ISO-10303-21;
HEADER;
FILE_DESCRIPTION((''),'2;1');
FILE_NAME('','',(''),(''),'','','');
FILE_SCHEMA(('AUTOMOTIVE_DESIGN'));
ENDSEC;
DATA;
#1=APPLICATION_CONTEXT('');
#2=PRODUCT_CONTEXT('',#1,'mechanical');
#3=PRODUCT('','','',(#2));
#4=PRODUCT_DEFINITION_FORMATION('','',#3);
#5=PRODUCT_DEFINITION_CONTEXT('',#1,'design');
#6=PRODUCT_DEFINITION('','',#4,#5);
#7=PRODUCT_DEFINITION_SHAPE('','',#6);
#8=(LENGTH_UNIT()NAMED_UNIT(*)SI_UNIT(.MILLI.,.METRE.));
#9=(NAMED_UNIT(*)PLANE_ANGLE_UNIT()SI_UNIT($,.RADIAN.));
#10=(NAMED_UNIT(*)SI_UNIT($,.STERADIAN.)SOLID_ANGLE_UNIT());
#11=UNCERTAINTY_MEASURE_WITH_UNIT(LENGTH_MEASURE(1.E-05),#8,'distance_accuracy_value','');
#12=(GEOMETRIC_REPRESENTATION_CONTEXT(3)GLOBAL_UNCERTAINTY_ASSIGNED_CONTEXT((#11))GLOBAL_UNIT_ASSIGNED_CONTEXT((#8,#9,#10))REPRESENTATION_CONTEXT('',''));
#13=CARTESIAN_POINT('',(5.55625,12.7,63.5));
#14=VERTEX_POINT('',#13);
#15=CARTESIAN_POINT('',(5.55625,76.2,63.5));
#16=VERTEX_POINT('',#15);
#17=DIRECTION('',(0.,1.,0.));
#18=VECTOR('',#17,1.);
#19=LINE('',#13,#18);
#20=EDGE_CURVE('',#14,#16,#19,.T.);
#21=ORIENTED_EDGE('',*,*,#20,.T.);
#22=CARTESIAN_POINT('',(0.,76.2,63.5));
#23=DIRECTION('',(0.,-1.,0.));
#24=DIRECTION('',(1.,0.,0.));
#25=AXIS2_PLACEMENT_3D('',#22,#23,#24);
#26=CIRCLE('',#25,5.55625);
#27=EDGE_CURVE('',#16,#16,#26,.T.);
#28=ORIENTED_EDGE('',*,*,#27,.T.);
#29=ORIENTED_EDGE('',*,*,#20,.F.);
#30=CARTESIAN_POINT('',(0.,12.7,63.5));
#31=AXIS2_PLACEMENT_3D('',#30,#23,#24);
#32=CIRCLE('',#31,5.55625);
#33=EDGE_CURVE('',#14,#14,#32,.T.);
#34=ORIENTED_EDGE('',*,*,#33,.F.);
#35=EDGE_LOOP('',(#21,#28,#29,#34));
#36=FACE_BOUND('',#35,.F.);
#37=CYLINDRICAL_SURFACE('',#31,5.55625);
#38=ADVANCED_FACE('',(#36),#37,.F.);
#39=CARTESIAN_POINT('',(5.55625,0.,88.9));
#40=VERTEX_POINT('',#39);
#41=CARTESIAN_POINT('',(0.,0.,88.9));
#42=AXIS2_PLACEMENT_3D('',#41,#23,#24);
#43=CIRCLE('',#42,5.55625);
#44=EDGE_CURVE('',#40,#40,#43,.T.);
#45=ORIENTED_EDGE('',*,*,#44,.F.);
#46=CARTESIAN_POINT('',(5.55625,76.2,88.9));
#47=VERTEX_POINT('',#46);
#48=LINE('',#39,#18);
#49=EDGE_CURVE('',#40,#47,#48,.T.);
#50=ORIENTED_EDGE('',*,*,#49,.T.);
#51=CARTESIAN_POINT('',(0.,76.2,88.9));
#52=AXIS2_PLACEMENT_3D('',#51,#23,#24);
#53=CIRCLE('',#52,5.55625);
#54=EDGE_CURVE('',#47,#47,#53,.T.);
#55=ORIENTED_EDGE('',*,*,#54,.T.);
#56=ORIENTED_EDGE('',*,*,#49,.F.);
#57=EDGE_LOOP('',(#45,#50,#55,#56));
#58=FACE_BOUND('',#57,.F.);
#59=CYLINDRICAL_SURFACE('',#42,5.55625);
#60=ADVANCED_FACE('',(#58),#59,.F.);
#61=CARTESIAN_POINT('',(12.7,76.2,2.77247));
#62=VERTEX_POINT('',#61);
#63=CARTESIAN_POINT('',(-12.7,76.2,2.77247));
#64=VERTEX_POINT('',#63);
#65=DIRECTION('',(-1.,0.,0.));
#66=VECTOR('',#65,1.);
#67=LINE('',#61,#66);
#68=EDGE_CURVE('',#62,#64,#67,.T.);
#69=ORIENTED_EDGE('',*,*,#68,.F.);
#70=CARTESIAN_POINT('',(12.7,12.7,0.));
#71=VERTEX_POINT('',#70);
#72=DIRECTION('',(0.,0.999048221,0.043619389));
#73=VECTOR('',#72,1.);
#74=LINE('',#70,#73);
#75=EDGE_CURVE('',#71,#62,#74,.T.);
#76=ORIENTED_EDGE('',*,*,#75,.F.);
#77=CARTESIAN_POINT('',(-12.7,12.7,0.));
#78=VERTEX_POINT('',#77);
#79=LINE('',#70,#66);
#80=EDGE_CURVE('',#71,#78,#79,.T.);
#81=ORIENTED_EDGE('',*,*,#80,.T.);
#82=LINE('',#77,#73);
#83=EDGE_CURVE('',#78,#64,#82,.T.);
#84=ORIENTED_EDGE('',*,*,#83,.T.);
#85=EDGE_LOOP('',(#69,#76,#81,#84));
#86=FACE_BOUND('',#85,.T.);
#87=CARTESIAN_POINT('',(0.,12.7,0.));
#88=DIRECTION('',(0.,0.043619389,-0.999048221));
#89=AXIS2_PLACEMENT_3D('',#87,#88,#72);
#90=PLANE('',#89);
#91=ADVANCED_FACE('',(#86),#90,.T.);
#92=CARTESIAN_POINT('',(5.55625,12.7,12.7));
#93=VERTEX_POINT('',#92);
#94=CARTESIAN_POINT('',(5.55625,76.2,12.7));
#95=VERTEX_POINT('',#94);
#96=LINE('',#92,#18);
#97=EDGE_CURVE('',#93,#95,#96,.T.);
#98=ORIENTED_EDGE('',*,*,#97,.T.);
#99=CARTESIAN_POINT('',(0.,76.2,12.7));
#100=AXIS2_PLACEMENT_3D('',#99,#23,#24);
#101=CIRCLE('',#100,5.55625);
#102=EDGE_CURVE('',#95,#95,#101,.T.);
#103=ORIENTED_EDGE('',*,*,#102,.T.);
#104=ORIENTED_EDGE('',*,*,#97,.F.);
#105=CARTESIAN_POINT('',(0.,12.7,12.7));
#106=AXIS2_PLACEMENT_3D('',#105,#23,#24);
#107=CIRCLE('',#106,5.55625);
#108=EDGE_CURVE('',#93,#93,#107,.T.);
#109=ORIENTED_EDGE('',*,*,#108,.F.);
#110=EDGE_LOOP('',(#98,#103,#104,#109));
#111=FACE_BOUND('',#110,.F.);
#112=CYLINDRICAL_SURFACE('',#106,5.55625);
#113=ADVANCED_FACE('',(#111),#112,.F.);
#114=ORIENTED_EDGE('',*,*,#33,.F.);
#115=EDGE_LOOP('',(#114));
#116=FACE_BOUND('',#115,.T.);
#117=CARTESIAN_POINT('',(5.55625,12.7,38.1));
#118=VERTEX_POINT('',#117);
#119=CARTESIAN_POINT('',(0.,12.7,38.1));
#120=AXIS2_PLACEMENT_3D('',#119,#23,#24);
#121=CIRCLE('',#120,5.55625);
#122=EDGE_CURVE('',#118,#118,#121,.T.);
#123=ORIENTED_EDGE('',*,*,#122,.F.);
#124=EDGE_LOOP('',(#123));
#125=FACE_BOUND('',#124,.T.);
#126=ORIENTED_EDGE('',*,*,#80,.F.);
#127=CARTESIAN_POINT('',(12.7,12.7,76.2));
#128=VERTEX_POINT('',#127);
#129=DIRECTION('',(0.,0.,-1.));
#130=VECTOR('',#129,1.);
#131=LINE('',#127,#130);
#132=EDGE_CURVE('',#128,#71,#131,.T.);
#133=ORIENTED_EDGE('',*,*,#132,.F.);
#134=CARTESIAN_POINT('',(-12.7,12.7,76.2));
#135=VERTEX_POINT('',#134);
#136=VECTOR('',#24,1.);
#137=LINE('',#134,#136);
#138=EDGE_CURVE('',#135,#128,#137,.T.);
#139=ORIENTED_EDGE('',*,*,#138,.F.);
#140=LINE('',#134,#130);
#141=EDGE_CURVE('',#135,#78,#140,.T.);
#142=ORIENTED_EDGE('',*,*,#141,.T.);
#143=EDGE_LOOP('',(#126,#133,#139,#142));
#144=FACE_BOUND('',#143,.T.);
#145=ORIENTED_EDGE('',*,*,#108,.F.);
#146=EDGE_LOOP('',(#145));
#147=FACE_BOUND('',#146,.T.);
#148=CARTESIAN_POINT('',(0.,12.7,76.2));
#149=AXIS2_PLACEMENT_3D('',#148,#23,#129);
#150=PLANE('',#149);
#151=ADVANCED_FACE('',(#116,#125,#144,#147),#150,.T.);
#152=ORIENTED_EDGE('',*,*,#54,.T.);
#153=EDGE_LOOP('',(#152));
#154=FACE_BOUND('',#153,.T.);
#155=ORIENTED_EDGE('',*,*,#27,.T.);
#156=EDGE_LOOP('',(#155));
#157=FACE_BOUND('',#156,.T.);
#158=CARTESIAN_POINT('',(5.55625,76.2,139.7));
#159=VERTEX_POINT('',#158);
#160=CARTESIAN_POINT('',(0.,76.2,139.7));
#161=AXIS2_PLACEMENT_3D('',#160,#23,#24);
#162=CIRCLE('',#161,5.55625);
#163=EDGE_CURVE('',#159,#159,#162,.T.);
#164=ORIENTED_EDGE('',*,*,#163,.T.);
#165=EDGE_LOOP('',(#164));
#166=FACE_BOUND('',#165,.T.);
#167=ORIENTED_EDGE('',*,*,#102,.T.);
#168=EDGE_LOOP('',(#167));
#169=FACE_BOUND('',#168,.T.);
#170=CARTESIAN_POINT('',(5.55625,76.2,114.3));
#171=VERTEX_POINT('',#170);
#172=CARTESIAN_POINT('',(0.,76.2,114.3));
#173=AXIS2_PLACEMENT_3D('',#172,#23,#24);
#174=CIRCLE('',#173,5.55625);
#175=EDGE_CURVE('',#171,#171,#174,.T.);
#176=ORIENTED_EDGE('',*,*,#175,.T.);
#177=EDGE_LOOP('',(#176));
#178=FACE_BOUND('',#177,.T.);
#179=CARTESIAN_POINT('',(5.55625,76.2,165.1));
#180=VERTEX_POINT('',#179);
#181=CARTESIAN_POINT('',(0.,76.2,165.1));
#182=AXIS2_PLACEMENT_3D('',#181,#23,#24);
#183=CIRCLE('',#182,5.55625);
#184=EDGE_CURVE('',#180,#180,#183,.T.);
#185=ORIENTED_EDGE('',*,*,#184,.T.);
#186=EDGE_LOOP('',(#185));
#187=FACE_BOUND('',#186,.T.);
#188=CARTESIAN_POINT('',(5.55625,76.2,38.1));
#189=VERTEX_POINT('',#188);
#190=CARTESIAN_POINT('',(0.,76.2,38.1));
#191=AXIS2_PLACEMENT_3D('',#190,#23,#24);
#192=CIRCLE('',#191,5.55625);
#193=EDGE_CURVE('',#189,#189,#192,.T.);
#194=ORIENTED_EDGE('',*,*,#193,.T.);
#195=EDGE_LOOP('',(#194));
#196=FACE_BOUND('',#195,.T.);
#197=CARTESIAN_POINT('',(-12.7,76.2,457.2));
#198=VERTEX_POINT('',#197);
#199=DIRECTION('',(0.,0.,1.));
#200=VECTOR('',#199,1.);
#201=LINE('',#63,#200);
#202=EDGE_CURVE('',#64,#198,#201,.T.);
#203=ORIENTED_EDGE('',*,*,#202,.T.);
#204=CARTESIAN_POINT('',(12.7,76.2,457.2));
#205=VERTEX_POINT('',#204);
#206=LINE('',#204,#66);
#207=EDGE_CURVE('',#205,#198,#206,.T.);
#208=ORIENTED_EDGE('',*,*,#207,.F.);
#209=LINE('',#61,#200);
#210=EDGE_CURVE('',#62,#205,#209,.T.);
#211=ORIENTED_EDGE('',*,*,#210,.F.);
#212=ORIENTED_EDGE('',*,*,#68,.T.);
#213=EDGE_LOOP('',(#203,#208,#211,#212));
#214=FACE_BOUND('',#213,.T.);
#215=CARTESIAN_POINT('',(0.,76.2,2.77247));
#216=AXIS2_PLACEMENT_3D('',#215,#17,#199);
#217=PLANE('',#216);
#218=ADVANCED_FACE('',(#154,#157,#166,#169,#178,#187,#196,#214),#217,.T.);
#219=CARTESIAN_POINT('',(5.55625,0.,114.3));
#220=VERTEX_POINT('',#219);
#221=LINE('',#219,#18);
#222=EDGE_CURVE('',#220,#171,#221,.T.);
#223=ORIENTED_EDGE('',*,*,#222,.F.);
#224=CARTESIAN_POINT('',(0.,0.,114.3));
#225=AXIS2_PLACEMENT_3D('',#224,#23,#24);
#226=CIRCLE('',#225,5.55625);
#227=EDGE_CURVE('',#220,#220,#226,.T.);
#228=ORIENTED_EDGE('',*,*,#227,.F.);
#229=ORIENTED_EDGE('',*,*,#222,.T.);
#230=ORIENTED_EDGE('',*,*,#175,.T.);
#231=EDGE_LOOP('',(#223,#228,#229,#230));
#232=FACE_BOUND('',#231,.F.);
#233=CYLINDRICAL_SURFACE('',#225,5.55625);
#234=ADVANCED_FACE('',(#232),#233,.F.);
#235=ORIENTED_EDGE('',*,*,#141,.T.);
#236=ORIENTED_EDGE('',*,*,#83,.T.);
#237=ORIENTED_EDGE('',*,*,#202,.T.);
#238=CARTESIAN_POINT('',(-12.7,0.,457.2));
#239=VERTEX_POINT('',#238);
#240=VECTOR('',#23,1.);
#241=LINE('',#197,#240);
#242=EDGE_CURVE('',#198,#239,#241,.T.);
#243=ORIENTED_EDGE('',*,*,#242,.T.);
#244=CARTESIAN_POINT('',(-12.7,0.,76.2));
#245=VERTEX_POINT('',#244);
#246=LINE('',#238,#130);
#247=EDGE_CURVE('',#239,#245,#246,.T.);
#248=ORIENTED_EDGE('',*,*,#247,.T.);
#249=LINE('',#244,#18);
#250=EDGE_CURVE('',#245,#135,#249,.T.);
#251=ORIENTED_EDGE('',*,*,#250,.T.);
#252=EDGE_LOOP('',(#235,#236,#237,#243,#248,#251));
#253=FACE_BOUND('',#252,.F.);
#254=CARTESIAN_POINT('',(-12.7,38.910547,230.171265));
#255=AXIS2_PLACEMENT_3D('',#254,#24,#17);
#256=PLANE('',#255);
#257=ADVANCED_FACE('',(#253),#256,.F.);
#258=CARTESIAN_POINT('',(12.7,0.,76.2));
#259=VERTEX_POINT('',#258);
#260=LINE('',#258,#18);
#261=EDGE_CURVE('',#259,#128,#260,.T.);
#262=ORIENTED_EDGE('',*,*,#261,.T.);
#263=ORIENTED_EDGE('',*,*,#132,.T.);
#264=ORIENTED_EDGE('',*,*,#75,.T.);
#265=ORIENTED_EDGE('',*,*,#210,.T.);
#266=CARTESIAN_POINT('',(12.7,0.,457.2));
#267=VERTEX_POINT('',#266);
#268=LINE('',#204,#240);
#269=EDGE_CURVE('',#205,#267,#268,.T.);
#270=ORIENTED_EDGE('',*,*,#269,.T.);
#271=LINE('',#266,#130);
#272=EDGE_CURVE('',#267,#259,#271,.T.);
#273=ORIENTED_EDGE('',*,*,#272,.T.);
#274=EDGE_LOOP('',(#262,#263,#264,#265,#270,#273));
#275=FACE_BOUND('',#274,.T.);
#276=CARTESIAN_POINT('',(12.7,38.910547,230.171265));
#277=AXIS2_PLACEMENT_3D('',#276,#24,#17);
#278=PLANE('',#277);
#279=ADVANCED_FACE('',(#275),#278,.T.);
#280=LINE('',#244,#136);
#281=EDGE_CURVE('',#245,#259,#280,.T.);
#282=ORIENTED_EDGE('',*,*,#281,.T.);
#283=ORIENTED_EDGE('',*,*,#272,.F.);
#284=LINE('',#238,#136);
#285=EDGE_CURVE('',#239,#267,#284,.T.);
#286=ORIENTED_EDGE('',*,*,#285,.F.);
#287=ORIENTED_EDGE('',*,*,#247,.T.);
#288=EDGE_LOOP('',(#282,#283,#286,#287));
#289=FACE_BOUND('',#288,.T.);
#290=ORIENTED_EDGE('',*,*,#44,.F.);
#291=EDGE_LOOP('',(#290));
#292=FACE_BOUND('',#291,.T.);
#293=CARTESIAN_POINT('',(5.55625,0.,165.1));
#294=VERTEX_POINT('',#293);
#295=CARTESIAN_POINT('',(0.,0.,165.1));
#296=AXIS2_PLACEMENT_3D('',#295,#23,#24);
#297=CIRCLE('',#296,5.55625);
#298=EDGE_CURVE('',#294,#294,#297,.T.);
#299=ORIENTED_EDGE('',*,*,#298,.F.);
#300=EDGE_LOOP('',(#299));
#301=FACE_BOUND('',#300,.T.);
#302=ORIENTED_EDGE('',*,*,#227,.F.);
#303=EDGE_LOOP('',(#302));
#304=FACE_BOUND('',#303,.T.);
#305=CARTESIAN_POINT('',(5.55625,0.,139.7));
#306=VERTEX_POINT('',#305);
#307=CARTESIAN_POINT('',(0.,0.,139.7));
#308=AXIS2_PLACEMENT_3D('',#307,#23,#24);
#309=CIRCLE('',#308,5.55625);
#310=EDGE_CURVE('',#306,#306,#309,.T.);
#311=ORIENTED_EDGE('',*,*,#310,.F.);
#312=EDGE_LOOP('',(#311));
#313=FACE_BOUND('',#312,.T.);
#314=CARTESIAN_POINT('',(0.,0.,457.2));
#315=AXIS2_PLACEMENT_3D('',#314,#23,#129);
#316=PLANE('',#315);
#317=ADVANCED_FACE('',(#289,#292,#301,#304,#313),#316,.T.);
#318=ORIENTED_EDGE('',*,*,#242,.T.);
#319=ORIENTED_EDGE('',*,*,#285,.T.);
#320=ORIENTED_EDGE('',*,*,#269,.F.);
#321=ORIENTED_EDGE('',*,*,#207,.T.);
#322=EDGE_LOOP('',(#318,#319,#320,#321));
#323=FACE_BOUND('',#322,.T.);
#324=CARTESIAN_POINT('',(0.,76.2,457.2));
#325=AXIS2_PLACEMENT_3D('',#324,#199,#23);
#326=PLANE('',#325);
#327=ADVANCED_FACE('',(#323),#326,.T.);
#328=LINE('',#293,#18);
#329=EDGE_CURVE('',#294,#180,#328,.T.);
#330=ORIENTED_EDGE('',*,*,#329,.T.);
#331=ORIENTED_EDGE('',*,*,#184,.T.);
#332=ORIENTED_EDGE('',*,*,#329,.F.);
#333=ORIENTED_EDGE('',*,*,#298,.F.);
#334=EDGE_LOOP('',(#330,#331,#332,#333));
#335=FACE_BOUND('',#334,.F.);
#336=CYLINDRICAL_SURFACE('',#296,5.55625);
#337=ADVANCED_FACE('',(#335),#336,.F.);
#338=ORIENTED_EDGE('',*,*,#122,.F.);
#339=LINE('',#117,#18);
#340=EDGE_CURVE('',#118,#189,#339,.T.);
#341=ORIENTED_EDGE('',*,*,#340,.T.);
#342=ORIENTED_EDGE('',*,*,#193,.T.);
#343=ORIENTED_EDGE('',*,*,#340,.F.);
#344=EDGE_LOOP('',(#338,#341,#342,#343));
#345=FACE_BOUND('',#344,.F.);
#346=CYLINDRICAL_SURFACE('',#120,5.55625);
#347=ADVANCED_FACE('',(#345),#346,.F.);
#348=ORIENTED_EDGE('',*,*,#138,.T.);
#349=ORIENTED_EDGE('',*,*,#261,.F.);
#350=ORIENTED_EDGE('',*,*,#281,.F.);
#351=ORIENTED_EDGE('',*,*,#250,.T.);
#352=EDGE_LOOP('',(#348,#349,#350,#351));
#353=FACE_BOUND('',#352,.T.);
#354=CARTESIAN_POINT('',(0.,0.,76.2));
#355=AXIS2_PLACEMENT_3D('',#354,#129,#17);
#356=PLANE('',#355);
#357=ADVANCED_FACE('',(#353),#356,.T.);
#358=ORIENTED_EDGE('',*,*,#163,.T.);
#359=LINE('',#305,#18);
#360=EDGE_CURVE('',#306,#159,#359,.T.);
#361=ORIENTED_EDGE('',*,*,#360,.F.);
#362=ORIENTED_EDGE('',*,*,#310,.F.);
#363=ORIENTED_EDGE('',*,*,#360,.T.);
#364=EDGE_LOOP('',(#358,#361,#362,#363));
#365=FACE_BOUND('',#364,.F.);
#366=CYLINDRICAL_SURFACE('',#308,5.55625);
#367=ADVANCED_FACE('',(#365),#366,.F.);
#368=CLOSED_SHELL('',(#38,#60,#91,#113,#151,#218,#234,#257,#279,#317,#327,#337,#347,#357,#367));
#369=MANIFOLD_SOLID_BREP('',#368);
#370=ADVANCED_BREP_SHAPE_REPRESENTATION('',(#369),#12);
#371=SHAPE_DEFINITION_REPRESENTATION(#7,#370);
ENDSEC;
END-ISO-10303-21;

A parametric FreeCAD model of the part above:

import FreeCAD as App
import Part
import Sketcher
Q = App.Units.Quantity

doc = App.newDocument("Part")
body = doc.addObject("PartDesign::Body", "Body")

# Sketch on YZ plane
sketch1 = body.newObject("Sketcher::SketchObject", "Sketch")
sketch1.AttachmentSupport = (doc.getObject("YZ_Plane"), [""])
sketch1.MapMode = "FlatFace"
sketch1.addGeometry([
    Part.LineSegment(App.Vector(76, 457, 0), App.Vector(0, 457, 0)),  # 0
    Part.LineSegment(App.Vector(0, 457, 0), App.Vector(0, 76, 0)),  # 1
    Part.LineSegment(App.Vector(0, 76, 0), App.Vector(13, 76, 0)),  # 2
    Part.LineSegment(App.Vector(13, 76, 0), App.Vector(13, 0, 0)),  # 3
    Part.LineSegment(App.Vector(13, 0, 0), App.Vector(76, 3, 0)),  # 4
    Part.LineSegment(App.Vector(76, 3, 0), App.Vector(76, 457, 0)),  # 5
], False)
sketch1.addConstraint([
    Sketcher.Constraint("Coincident", 0, 2, 1, 1),
    Sketcher.Constraint("Coincident", 1, 2, 2, 1),
    Sketcher.Constraint("Coincident", 2, 2, 3, 1),
    Sketcher.Constraint("Coincident", 3, 2, 4, 1),
    Sketcher.Constraint("Coincident", 4, 2, 5, 1),
    Sketcher.Constraint("Coincident", 5, 2, 0, 1),
    Sketcher.Constraint("Horizontal", 0),
    Sketcher.Constraint("Vertical", 1),
    Sketcher.Constraint("Horizontal", 2),
    Sketcher.Constraint("Vertical", 3),
    Sketcher.Constraint("Vertical", 5),
    Sketcher.Constraint("PointOnObject", 0, 2, -2),
    Sketcher.Constraint("PointOnObject", 3, 2, -1),
    Sketcher.Constraint("Equal", 0, 3),
    Sketcher.Constraint("DistanceX", 0, 2, 0, 1, Q("3 in")),
    Sketcher.Constraint("DistanceY", 1, 2, 1, 1, Q("15 in")),
    Sketcher.Constraint("DistanceX", 2, 1, 2, 2, Q("0.5 in")),
    Sketcher.Constraint("Angle", 4, Q("2.5 deg")),
])
pad1 = body.newObject("PartDesign::Pad", "Pad")
pad1.Profile = sketch1
pad1.Length = Q("1 in")
pad1.Midplane = True

# Sketch on XZ plane
sketch2 = body.newObject("Sketcher::SketchObject", "Sketch001")
sketch2.AttachmentSupport = (doc.getObject("XZ_Plane"), [""])
sketch2.MapMode = "FlatFace"
sketch2.AttachmentOffset = App.Placement(App.Vector(0, 0, -0.5 * 25.4), App.Rotation())
sketch2.addGeometry([
    Part.Circle(App.Vector(0, 38, 0), App.Vector(0, 0, 1), 6),
    Part.Circle(App.Vector(0, 64, 0), App.Vector(0, 0, 1), 6),
    Part.Circle(App.Vector(0, 13, 0), App.Vector(0, 0, 1), 6),
], False)
sketch2.addConstraint([
    Sketcher.Constraint("Equal", 0, 1),
    Sketcher.Constraint("Equal", 1, 2),
    Sketcher.Constraint("PointOnObject", 0, 3, -2),
    Sketcher.Constraint("PointOnObject", 1, 3, -2),
    Sketcher.Constraint("PointOnObject", 2, 3, -2),
    Sketcher.Constraint("Diameter", 0, Q("0.4375 in")),
    Sketcher.Constraint("DistanceY", 0, 3, 1, 3, Q("1 in")),
    Sketcher.Constraint("DistanceY", 2, 3, 0, 3, Q("1 in")),
    Sketcher.Constraint("DistanceY", -1, 1, 0, 3, Q("1.5 in")),
])
pocket1 = body.newObject("PartDesign::Pocket", "Pocket")
pocket1.Profile = sketch2
pocket1.Type = "ThroughAll"

# Sketch on XZ plane
sketch3 = body.newObject("Sketcher::SketchObject", "Sketch002")
sketch3.AttachmentSupport = (doc.getObject("XZ_Plane"), [""])
sketch3.MapMode = "FlatFace"
sketch3.addGeometry([
    Part.Circle(App.Vector(0, 114, 0), App.Vector(0, 0, 1), 6),
    Part.Circle(App.Vector(0, 140, 0), App.Vector(0, 0, 1), 6),
    Part.Circle(App.Vector(0, 89, 0), App.Vector(0, 0, 1), 6),
    Part.Circle(App.Vector(0, 165, 0), App.Vector(0, 0, 1), 6),
], False)
sketch3.addConstraint([
    Sketcher.Constraint("Equal", 0, 1),
    Sketcher.Constraint("Equal", 1, 2),
    Sketcher.Constraint("Equal", 2, 3),
    Sketcher.Constraint("PointOnObject", 0, 3, -2),
    Sketcher.Constraint("PointOnObject", 1, 3, -2),
    Sketcher.Constraint("PointOnObject", 2, 3, -2),
    Sketcher.Constraint("PointOnObject", 3, 3, -2),
    Sketcher.Constraint("Diameter", 0, Q("0.4375 in")),
    Sketcher.Constraint("DistanceY", 0, 3, 1, 3, Q("1 in")),
    Sketcher.Constraint("DistanceY", 2, 3, 0, 3, Q("1 in")),
    Sketcher.Constraint("DistanceY", 1, 3, 3, 3, Q("1 in")),
    Sketcher.Constraint("DistanceY", -1, 1, 0, 3, Q("4.5 in")),
])
pocket2 = body.newObject("PartDesign::Pocket", "Pocket001")
pocket2.Profile = sketch3
pocket2.Type = "ThroughAll"

doc.recompute()
